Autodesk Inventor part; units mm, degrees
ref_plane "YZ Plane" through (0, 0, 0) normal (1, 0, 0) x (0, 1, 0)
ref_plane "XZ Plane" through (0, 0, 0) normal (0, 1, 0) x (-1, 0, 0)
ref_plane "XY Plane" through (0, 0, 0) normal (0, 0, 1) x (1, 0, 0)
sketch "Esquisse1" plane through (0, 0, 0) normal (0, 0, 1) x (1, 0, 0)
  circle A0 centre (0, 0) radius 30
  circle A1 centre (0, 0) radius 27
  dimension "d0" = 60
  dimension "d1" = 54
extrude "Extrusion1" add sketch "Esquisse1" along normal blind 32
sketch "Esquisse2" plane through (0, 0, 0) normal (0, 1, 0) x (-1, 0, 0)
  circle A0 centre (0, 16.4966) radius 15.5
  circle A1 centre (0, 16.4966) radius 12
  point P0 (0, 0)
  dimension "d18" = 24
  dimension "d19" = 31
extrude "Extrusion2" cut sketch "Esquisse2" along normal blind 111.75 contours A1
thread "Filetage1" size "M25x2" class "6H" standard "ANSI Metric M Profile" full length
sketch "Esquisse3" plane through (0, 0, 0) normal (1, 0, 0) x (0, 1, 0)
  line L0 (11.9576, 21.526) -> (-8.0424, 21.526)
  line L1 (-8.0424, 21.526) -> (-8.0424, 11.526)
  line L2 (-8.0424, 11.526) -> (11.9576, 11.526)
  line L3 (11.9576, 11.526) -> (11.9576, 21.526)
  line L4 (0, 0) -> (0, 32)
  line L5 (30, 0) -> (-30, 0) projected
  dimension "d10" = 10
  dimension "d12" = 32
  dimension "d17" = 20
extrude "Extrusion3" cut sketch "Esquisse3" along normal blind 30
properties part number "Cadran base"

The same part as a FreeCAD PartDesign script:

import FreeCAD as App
import Part
import Sketcher
from FreeCAD import Vector

doc = App.newDocument("Part")
params = doc.addObject("Spreadsheet::Sheet", "Params")
for row, (alias, value) in enumerate([
    ("sketch1_diameter", "60 mm"),
    ("sketch1_diameter2", "54 mm"),
    ("pad1_length", "32 mm"),
    ("sketch2_diameter", "24 mm"),
    ("pocket1_length", "111.75 mm"),
    ("sketch3_width", "20 mm"),
    ("sketch3_height", "10 mm"),
    ("pocket2_length", "30 mm"),
], start=1):
    params.set(f"A{row}", alias)
    params.set(f"B{row}", "=" + value)
    params.setAlias(f"B{row}", alias)

body = doc.addObject("PartDesign::Body", "Body")

# Sketch on XY plane
sketch1 = body.newObject("Sketcher::SketchObject", "Sketch")
sketch1.AttachmentSupport = (doc.getObject("XY_Plane"), [""])
sketch1.MapMode = "FlatFace"
sketch1.addGeometry([
    Part.Circle(Vector(0, 0, 0), Vector(0, 0, 1), 30),
    Part.Circle(Vector(0, 0, 0), Vector(0, 0, 1), 27),
], False)
sketch1.addConstraint([
    Sketcher.Constraint("Coincident", 0, 3, -1, 1),
    Sketcher.Constraint("Coincident", 1, 3, -1, 1),
    Sketcher.Constraint("Diameter", 0, 60.0),
    Sketcher.Constraint("Diameter", 1, 54.0),
])
sketch1.setExpression("Constraints[2]", "Params.sketch1_diameter")
sketch1.setExpression("Constraints[3]", "Params.sketch1_diameter2")
pad1 = body.newObject("PartDesign::Pad", "Pad")
pad1.Profile = sketch1
pad1.setExpression("Length", "Params.pad1_length")

# Sketch on XZ plane
sketch2 = body.newObject("Sketcher::SketchObject", "Sketch001")
sketch2.AttachmentSupport = (doc.getObject("XZ_Plane"), [""])
sketch2.MapMode = "FlatFace"
sketch2.addGeometry(Part.Circle(Vector(0, 16.4966, 0), Vector(0, 0, 1), 12), False)
sketch2.addConstraint([
    Sketcher.Constraint("PointOnObject", 0, 3, -2),
    Sketcher.Constraint("Diameter", 0, 24.0),
    Sketcher.Constraint("DistanceY", -1, 1, 0, 3, 16.4966),
])
sketch2.setExpression("Constraints[1]", "Params.sketch2_diameter")
pocket1 = body.newObject("PartDesign::Pocket", "Pocket")
pocket1.Profile = sketch2
pocket1.setExpression("Length", "Params.pocket1_length")

# Sketch on YZ plane
sketch3 = body.newObject("Sketcher::SketchObject", "Sketch002")
sketch3.AttachmentSupport = (doc.getObject("YZ_Plane"), [""])
sketch3.MapMode = "FlatFace"
sketch3.addGeometry([
    Part.LineSegment(Vector(11.9576, 11.526, 0), Vector(11.9576, 21.526, 0)),
    Part.LineSegment(Vector(11.9576, 21.526, 0), Vector(-8.0424, 21.526, 0)),
    Part.LineSegment(Vector(-8.0424, 21.526, 0), Vector(-8.0424, 11.526, 0)),
    Part.LineSegment(Vector(-8.0424, 11.526, 0), Vector(11.9576, 11.526, 0)),
], False)
sketch3.addConstraint([
    Sketcher.Constraint("Coincident", 0, 2, 1, 1),
    Sketcher.Constraint("Coincident", 1, 2, 2, 1),
    Sketcher.Constraint("Coincident", 2, 2, 3, 1),
    Sketcher.Constraint("Coincident", 3, 2, 0, 1),
    Sketcher.Constraint("Vertical", 0),
    Sketcher.Constraint("Horizontal", 1),
    Sketcher.Constraint("Vertical", 2),
    Sketcher.Constraint("Horizontal", 3),
    Sketcher.Constraint("DistanceX", 1, 2, 1, 1, 20.0),
    Sketcher.Constraint("DistanceY", 0, 1, 0, 2, 10.0),
    Sketcher.Constraint("DistanceY", -1, 1, 0, 2, 21.526),
    Sketcher.Constraint("DistanceX", -1, 1, 0, 2, 11.9576),
])
sketch3.setExpression("Constraints[8]", "Params.sketch3_width")
sketch3.setExpression("Constraints[9]", "Params.sketch3_height")
pocket2 = body.newObject("PartDesign::Pocket", "Pocket001")
pocket2.Profile = sketch3
pocket2.setExpression("Length", "Params.pocket2_length")
pocket2.Reversed = True

doc.recompute()
